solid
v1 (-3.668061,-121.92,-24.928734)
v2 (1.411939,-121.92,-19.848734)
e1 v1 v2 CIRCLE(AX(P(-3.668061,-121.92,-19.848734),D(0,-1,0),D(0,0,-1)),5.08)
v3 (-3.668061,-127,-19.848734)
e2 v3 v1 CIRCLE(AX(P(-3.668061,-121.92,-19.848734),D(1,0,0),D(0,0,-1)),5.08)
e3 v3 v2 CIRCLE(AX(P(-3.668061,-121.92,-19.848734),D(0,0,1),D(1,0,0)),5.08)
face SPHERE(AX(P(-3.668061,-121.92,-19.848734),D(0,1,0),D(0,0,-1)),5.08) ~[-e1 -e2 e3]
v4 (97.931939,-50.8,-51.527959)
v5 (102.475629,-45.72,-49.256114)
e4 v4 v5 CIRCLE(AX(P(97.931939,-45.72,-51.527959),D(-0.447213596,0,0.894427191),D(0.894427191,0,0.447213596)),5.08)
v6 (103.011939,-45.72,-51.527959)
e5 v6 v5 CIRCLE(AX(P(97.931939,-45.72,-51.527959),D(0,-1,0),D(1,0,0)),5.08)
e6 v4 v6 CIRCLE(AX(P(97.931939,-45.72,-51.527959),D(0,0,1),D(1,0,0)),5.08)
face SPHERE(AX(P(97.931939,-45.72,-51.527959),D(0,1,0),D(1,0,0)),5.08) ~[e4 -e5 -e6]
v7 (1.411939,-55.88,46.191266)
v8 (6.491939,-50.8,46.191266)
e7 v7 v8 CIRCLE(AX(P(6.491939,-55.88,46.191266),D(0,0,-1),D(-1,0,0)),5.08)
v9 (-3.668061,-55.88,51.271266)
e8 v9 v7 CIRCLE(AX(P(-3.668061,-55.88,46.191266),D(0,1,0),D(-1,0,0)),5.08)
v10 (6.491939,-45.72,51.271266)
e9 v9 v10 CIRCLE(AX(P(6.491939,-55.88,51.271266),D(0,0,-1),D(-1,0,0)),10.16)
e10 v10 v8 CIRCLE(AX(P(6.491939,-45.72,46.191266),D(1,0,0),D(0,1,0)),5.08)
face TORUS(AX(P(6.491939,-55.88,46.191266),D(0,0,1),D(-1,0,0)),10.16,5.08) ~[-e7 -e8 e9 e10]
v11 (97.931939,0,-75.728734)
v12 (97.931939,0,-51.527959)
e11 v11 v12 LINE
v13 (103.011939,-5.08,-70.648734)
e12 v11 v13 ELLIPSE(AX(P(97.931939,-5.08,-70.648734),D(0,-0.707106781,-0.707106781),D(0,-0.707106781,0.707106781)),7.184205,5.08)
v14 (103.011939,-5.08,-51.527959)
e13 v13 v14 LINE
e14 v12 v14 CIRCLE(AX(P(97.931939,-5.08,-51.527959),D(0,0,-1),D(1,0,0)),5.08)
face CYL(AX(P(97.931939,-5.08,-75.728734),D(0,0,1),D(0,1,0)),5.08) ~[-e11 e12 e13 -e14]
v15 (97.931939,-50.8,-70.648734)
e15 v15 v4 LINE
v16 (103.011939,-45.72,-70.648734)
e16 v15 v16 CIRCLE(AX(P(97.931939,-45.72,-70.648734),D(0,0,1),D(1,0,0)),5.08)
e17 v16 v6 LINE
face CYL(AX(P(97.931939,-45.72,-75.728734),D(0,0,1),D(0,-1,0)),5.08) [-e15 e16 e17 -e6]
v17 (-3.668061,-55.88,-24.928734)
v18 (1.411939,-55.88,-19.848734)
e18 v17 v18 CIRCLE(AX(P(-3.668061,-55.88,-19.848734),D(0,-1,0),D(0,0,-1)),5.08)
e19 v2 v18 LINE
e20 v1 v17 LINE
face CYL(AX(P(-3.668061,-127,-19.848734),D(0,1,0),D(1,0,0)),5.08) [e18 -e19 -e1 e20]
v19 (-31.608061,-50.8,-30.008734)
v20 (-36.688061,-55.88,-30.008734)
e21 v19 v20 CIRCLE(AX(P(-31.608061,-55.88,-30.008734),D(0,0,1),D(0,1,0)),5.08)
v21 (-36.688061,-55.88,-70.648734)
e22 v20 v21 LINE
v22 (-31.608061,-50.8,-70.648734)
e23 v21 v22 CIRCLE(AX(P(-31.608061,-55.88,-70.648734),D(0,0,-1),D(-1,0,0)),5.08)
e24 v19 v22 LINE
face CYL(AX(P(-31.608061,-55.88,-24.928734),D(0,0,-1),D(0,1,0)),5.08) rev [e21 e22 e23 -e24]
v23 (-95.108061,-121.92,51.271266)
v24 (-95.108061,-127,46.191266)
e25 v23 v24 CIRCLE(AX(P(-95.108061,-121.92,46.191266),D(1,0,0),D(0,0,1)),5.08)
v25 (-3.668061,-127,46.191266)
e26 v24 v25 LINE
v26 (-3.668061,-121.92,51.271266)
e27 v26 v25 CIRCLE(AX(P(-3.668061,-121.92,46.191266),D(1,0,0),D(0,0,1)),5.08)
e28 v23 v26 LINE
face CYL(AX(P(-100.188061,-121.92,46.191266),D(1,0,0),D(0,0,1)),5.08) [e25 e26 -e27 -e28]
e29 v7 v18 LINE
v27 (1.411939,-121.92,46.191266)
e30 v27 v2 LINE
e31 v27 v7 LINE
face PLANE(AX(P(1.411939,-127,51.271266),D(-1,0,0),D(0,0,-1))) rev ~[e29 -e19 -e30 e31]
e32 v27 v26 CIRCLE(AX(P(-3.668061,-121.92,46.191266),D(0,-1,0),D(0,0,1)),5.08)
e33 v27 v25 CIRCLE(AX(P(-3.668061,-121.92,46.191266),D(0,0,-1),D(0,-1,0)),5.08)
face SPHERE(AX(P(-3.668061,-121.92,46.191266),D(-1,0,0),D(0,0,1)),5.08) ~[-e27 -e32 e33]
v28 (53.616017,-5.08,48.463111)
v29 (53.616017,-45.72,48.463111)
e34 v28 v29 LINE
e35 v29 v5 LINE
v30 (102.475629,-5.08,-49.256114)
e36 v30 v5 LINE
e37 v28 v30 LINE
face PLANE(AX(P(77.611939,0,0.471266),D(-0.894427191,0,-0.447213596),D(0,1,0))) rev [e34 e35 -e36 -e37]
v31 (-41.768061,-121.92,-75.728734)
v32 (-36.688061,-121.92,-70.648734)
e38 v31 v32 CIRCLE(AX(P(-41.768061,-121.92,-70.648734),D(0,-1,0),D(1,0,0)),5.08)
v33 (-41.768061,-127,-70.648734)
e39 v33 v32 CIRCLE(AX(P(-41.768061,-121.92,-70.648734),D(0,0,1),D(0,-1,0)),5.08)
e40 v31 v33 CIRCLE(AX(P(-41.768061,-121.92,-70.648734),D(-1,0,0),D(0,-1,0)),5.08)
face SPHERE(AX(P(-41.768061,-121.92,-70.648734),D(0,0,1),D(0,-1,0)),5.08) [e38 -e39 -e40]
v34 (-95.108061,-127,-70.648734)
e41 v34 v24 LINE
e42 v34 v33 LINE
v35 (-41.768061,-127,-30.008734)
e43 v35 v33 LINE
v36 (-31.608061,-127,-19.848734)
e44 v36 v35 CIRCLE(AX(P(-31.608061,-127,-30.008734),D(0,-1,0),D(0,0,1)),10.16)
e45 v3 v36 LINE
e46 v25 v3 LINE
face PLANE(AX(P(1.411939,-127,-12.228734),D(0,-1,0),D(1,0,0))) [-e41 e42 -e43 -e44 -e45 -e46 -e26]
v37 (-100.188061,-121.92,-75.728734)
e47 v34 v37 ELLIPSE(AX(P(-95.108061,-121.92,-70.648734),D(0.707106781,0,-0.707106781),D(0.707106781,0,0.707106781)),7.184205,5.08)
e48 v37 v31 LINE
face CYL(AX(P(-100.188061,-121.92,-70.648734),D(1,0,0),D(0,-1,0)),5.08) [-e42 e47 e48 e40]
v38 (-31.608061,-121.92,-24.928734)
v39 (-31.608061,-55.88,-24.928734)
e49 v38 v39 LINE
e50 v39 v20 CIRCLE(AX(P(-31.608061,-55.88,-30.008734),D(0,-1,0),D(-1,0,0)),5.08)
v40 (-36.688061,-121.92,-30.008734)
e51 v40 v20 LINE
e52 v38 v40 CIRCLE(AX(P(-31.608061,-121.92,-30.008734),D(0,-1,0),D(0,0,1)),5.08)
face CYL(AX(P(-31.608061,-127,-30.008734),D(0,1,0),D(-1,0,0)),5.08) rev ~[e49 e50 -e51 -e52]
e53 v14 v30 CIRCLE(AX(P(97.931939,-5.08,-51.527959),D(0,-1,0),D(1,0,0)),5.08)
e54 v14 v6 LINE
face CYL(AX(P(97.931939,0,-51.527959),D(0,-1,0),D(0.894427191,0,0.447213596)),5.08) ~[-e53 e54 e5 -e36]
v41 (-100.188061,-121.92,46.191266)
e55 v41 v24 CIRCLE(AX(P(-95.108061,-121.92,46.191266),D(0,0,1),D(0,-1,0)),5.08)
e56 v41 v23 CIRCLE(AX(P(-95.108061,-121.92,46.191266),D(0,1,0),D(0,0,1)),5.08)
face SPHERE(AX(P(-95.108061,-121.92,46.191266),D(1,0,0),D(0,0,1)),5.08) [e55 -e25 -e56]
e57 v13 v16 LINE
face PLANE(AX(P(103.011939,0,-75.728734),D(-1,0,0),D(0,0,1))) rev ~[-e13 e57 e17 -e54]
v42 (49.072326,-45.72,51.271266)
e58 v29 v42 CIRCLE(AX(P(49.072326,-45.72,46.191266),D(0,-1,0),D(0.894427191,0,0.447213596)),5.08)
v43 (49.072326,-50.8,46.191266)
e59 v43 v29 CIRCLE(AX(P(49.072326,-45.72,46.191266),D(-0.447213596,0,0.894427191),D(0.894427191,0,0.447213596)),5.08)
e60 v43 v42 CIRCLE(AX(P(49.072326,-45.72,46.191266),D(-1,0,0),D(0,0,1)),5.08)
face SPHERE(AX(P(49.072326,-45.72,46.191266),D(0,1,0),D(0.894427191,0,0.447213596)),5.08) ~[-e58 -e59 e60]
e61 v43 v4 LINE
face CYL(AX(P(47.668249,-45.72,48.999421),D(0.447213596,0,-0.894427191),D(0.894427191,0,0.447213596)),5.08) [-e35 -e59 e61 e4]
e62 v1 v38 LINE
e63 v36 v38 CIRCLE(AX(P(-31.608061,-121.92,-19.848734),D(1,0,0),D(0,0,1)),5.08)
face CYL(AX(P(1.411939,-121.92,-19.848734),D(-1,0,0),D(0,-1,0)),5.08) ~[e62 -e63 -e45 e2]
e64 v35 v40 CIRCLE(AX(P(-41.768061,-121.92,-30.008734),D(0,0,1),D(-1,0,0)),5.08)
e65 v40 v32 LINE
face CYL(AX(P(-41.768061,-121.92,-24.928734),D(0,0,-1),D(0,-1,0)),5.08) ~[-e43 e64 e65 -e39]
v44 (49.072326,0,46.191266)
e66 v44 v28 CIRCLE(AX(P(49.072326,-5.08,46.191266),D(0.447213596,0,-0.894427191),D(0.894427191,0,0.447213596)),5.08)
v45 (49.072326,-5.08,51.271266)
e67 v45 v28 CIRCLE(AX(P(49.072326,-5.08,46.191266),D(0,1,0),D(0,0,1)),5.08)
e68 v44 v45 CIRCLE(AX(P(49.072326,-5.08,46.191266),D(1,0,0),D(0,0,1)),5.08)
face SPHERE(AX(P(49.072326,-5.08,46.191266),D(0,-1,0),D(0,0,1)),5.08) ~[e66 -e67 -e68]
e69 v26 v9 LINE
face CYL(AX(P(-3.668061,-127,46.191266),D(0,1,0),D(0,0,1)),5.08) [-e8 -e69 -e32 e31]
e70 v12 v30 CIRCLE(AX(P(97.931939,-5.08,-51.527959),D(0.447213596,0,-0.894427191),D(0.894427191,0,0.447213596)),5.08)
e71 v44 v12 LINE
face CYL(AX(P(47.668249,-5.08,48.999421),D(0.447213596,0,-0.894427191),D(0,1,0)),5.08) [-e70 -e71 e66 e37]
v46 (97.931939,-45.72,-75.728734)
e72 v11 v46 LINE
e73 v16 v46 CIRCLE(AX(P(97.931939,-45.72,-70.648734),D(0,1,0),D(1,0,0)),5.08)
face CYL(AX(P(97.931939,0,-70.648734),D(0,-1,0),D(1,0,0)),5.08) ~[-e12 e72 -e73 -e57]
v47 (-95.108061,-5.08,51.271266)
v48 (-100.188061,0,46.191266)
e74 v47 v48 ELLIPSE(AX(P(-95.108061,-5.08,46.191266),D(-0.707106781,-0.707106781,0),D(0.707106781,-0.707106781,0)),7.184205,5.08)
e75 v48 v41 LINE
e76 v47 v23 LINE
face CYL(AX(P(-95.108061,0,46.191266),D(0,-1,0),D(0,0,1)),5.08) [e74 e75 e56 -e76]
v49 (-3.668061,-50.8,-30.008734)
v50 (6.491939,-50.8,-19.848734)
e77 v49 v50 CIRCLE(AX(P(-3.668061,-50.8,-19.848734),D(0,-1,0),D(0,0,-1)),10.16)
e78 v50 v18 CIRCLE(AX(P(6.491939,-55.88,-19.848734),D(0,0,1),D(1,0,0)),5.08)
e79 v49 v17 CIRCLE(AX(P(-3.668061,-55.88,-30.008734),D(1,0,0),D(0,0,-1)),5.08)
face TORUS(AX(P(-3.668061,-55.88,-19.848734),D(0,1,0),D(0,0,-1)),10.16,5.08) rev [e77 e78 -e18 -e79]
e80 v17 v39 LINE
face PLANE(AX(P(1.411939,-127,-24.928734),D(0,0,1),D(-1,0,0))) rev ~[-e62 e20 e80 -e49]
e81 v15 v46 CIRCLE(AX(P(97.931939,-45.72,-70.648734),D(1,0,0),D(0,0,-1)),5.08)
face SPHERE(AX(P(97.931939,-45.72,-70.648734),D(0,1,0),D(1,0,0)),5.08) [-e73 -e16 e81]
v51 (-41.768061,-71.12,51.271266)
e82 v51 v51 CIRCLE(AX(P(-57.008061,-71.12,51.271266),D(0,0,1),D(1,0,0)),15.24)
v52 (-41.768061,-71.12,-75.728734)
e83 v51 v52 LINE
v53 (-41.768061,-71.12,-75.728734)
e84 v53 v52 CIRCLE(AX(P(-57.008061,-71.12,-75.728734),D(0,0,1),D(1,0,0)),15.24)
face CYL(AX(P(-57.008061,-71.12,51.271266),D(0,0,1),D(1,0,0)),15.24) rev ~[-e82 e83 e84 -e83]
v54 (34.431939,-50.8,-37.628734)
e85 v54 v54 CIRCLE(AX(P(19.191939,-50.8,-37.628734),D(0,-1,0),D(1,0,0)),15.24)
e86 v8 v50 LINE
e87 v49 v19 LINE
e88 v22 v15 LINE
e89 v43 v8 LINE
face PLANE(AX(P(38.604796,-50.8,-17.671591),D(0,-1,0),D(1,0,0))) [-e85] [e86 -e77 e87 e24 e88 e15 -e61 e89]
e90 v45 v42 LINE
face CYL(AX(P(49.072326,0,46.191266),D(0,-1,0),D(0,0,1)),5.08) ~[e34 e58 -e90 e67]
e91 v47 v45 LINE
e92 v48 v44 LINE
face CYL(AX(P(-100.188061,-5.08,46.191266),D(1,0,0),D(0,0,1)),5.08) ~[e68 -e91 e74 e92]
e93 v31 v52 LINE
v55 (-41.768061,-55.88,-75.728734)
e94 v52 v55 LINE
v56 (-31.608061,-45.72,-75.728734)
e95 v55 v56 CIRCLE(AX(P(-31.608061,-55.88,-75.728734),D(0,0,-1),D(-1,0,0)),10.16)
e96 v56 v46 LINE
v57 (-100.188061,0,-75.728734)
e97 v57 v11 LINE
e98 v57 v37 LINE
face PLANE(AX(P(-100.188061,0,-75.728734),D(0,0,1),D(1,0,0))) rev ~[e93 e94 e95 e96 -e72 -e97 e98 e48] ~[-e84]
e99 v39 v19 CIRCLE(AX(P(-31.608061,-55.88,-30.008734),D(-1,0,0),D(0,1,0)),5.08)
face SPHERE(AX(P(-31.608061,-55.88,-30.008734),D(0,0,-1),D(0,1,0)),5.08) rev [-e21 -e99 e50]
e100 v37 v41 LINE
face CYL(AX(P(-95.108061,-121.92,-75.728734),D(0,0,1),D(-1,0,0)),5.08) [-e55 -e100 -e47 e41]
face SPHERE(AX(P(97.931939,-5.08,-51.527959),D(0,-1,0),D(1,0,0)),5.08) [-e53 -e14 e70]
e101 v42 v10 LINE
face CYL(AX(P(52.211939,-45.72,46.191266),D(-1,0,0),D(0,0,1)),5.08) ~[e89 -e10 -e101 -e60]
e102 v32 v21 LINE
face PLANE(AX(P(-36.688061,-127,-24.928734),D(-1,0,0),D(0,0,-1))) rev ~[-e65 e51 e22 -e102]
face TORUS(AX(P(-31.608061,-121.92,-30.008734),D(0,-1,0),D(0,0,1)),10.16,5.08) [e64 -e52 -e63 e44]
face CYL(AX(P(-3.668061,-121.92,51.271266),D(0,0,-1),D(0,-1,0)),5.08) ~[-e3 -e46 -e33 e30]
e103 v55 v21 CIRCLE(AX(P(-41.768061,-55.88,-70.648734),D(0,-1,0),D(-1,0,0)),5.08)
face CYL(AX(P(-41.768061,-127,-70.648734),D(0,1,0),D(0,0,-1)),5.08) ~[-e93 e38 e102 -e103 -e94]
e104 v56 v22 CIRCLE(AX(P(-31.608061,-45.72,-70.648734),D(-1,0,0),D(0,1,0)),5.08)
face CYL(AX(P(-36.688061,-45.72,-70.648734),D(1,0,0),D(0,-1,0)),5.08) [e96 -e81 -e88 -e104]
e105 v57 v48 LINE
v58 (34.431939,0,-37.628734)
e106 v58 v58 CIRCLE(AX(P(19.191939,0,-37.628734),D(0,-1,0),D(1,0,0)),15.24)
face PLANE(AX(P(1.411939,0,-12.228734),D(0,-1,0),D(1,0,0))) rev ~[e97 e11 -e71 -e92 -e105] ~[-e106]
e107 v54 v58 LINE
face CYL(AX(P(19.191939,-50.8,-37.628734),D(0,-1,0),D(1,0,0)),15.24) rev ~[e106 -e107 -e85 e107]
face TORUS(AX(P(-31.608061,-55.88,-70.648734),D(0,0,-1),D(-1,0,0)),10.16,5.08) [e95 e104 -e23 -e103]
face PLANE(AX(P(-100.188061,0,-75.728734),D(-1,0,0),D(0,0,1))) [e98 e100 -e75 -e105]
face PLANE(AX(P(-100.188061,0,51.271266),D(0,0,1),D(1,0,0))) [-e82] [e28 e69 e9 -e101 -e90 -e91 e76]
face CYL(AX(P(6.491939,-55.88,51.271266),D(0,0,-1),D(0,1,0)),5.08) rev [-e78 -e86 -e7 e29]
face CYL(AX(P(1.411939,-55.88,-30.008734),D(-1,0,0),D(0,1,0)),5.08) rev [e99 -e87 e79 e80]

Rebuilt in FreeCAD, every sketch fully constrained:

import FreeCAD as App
import Part
import Sketcher
from FreeCAD import Vector
Q = App.Units.Quantity


def edges_at(feature, points):
    """Names of the edges that pass closest to the given points."""
    edges = feature.Shape.Edges
    near = lambda p: min(range(len(edges)), key=lambda i: edges[i].distToShape(Part.Vertex(*p))[0])
    return sorted({f"Edge{near(p) + 1}" for p in points})

doc = App.newDocument("Part")
params = doc.addObject("Spreadsheet::Sheet", "Params")
for row, (alias, value) in enumerate([
    ("sketch1_width", "8 in"),
    ("sketch1_height", "5 in"),
    ("pad1_length", "5 in"),
    ("sketch2_width", "4 in"),
    ("sketch2_height", "2 in"),
    ("sketch2_height2", "5 in"),
    ("sketch2_width2", "5.5 in"),
    ("pocket1_length", "3 in"),
    ("chamfer_size", "2 in"),
    ("chamfer_size2", "4 in"),
    ("fillet_radius", "0.2 in"),
    ("sketch3_diameter", "1.2 in"),
    ("sketch4_diameter", "1.2 in"),
], start=1):
    params.set(f"A{row}", alias)
    params.set(f"B{row}", "=" + value)
    params.setAlias(f"B{row}", alias)

body = doc.addObject("PartDesign::Body", "Body")

# Sketch on XZ plane
sketch1 = doc.addObject("Sketcher::SketchObject", "Sketch")
body.addObject(sketch1)
sketch1.AttachmentSupport = (doc.XZ_Plane, [""])
sketch1.MapMode = "FlatFace"
sketch1.addGeometry([
    Part.LineSegment(Vector(-100.188061, 51.271266, 0), Vector(-100.188061, -75.728734, 0)),
    Part.LineSegment(Vector(-100.188061, -75.728734, 0), Vector(103.011939, -75.728734, 0)),
    Part.LineSegment(Vector(103.011939, -75.728734, 0), Vector(103.011939, 51.271266, 0)),
    Part.LineSegment(Vector(103.011939, 51.271266, 0), Vector(-100.188061, 51.271266, 0)),
], False)
sketch1.addConstraint([
    Sketcher.Constraint("Coincident", 0, 2, 1, 1),
    Sketcher.Constraint("Coincident", 1, 2, 2, 1),
    Sketcher.Constraint("Coincident", 2, 2, 3, 1),
    Sketcher.Constraint("Coincident", 3, 2, 0, 1),
    Sketcher.Constraint("Vertical", 0),
    Sketcher.Constraint("Horizontal", 1),
    Sketcher.Constraint("Vertical", 2),
    Sketcher.Constraint("Horizontal", 3),
    Sketcher.Constraint("DistanceX", 1, 1, 1, 2, Q("8 in")),
    Sketcher.Constraint("DistanceY", 0, 2, 0, 1, Q("5 in")),
    Sketcher.Constraint("DistanceX", 0, 2, -1, 1, 100.188061),
    Sketcher.Constraint("DistanceY", 0, 2, -1, 1, 75.728734),
])
sketch1.setExpression("Constraints[8]", "Params.sketch1_width")
sketch1.setExpression("Constraints[9]", "Params.sketch1_height")
pad1 = doc.addObject("PartDesign::Pad", "Pad")
body.addObject(pad1)
pad1.Profile = sketch1
pad1.setExpression("Length", "Params.pad1_length")

# Sketch on XZ plane
sketch2 = doc.addObject("Sketcher::SketchObject", "Sketch001")
body.addObject(sketch2)
sketch2.AttachmentSupport = (doc.XZ_Plane, [""])
sketch2.MapMode = "FlatFace"
sketch2.AttachmentOffset = App.Placement(Vector(0, 0, 5 * 25.4), App.Rotation())
sketch2.addGeometry([
    Part.LineSegment(Vector(-36.688061, -24.928734, 0), Vector(-36.688061, -75.728734, 0)),  # 0
    Part.LineSegment(Vector(-36.688061, -75.728734, 0), Vector(103.011939, -75.728734, 0)),  # 1
    Part.LineSegment(Vector(103.011939, -75.728734, 0), Vector(103.011939, 51.271266, 0)),  # 2
    Part.LineSegment(Vector(103.011939, 51.271266, 0), Vector(1.411939, 51.271266, 0)),  # 3
    Part.LineSegment(Vector(1.411939, 51.271266, 0), Vector(1.411939, -24.928734, 0)),  # 4
    Part.LineSegment(Vector(1.411939, -24.928734, 0), Vector(-36.688061, -24.928734, 0)),  # 5
], False)
sketch2.addConstraint([
    Sketcher.Constraint("Coincident", 0, 2, 1, 1),
    Sketcher.Constraint("Coincident", 1, 2, 2, 1),
    Sketcher.Constraint("Coincident", 2, 2, 3, 1),
    Sketcher.Constraint("Coincident", 3, 2, 4, 1),
    Sketcher.Constraint("Coincident", 4, 2, 5, 1),
    Sketcher.Constraint("Coincident", 5, 2, 0, 1),
    Sketcher.Constraint("Vertical", 0),
    Sketcher.Constraint("Horizontal", 1),
    Sketcher.Constraint("Vertical", 2),
    Sketcher.Constraint("Horizontal", 3),
    Sketcher.Constraint("Vertical", 4),
    Sketcher.Constraint("Horizontal", 5),
    Sketcher.Constraint("DistanceX", 3, 2, 3, 1, Q("4 in")),
    Sketcher.Constraint("DistanceY", 0, 2, 0, 1, Q("2 in")),
    Sketcher.Constraint("DistanceY", 2, 1, 2, 2, Q("5 in")),
    Sketcher.Constraint("DistanceX", 1, 1, 1, 2, Q("5.5 in")),
    Sketcher.Constraint("DistanceX", 0, 2, -1, 1, 36.688061),
    Sketcher.Constraint("DistanceY", 0, 2, -1, 1, 75.728734),
])
sketch2.setExpression("Constraints[12]", "Params.sketch2_width")
sketch2.setExpression("Constraints[13]", "Params.sketch2_height")
sketch2.setExpression("Constraints[14]", "Params.sketch2_height2")
sketch2.setExpression("Constraints[15]", "Params.sketch2_width2")
pocket1 = doc.addObject("PartDesign::Pocket", "Pocket")
body.addObject(pocket1)
pocket1.Profile = sketch2
pocket1.setExpression("Length", "Params.pocket1_length")
doc.recompute()

chamfer = doc.addObject("PartDesign::Chamfer", "Chamfer")
body.addObject(chamfer)
chamfer.Base = (pocket1, edges_at(pocket1, [(103.012, -25.4, 51.271)]))
chamfer.ChamferType = "Two distances"
chamfer.setExpression("Size", "Params.chamfer_size")
chamfer.setExpression("Size2", "Params.chamfer_size2")
doc.recompute()

fillet = doc.addObject("PartDesign::Fillet", "Fillet")
body.addObject(fillet)
fillet.Base = (chamfer, edges_at(chamfer, [
    (-49.388, -127, 51.271),
    (-100.188, -63.5, 51.271),
    (1.412, -88.9, 51.271),
    (26.812, -50.8, 51.271),
    (52.212, -25.4, 51.271),
    (-23.988, 0, 51.271),
    (77.612, -50.8, 0.471),
    (77.612, 0, 0.471),
    (103.012, -25.4, -50.329),
    (103.012, 0, -63.029),
    (103.012, -25.4, -75.729),
    (103.012, -50.8, -63.029),
    (33.162, -50.8, -75.729),
    (1.412, -50.8, 13.171),
    (1.412, -88.9, -24.929),
    (-36.688, -50.8, -50.329),
    (-17.638, -127, -24.929),
    (-36.688, -127, -50.329),
    (-68.438, -127, -75.729),
    (-36.688, -88.9, -75.729),
    (-17.638, -50.8, -24.929),
    (-36.688, -88.9, -24.929),
    (-100.188, -127, -12.229),
    (1.412, -127, 13.171),
]))
fillet.setExpression("Radius", "Params.fillet_radius")

# Sketch on XZ plane
sketch3 = doc.addObject("Sketcher::SketchObject", "Sketch002")
body.addObject(sketch3)
sketch3.AttachmentSupport = (doc.XZ_Plane, [""])
sketch3.MapMode = "FlatFace"
sketch3.AttachmentOffset = App.Placement(Vector(0, 0, 2 * 25.4), App.Rotation())
sketch3.addGeometry(Part.Circle(Vector(19.191939, -37.628734, 0), Vector(0, 0, 1), 15.24), False)
sketch3.addConstraint([
    Sketcher.Constraint("Diameter", 0, Q("1.2 in")),
    Sketcher.Constraint("DistanceX", -1, 1, 0, 3, 19.191939),
    Sketcher.Constraint("DistanceY", 0, 3, -1, 1, 37.628734),
])
sketch3.setExpression("Constraints[0]", "Params.sketch3_diameter")
pocket2 = doc.addObject("PartDesign::Pocket", "Pocket001")
body.addObject(pocket2)
pocket2.Profile = sketch3
pocket2.Type = "ThroughAll"

# Sketch on XY plane
sketch4 = doc.addObject("Sketcher::SketchObject", "Sketch003")
body.addObject(sketch4)
sketch4.AttachmentSupport = (doc.XY_Plane, [""])
sketch4.MapMode = "FlatFace"
sketch4.AttachmentOffset = App.Placement(Vector(0, 0, 51.271266), App.Rotation())
sketch4.addGeometry(Part.Circle(Vector(-57.008061, -71.12, 0), Vector(0, 0, 1), 15.24), False)
sketch4.addConstraint([
    Sketcher.Constraint("Diameter", 0, Q("1.2 in")),
    Sketcher.Constraint("DistanceY", 0, 3, -1, 1, Q("2.8 in")),
    Sketcher.Constraint("DistanceX", 0, 3, -1, 1, 57.008061),
])
sketch4.setExpression("Constraints[0]", "Params.sketch4_diameter")
pocket3 = doc.addObject("PartDesign::Pocket", "Pocket002")
body.addObject(pocket3)
pocket3.Profile = sketch4
pocket3.Type = "ThroughAll"

doc.recompute()
